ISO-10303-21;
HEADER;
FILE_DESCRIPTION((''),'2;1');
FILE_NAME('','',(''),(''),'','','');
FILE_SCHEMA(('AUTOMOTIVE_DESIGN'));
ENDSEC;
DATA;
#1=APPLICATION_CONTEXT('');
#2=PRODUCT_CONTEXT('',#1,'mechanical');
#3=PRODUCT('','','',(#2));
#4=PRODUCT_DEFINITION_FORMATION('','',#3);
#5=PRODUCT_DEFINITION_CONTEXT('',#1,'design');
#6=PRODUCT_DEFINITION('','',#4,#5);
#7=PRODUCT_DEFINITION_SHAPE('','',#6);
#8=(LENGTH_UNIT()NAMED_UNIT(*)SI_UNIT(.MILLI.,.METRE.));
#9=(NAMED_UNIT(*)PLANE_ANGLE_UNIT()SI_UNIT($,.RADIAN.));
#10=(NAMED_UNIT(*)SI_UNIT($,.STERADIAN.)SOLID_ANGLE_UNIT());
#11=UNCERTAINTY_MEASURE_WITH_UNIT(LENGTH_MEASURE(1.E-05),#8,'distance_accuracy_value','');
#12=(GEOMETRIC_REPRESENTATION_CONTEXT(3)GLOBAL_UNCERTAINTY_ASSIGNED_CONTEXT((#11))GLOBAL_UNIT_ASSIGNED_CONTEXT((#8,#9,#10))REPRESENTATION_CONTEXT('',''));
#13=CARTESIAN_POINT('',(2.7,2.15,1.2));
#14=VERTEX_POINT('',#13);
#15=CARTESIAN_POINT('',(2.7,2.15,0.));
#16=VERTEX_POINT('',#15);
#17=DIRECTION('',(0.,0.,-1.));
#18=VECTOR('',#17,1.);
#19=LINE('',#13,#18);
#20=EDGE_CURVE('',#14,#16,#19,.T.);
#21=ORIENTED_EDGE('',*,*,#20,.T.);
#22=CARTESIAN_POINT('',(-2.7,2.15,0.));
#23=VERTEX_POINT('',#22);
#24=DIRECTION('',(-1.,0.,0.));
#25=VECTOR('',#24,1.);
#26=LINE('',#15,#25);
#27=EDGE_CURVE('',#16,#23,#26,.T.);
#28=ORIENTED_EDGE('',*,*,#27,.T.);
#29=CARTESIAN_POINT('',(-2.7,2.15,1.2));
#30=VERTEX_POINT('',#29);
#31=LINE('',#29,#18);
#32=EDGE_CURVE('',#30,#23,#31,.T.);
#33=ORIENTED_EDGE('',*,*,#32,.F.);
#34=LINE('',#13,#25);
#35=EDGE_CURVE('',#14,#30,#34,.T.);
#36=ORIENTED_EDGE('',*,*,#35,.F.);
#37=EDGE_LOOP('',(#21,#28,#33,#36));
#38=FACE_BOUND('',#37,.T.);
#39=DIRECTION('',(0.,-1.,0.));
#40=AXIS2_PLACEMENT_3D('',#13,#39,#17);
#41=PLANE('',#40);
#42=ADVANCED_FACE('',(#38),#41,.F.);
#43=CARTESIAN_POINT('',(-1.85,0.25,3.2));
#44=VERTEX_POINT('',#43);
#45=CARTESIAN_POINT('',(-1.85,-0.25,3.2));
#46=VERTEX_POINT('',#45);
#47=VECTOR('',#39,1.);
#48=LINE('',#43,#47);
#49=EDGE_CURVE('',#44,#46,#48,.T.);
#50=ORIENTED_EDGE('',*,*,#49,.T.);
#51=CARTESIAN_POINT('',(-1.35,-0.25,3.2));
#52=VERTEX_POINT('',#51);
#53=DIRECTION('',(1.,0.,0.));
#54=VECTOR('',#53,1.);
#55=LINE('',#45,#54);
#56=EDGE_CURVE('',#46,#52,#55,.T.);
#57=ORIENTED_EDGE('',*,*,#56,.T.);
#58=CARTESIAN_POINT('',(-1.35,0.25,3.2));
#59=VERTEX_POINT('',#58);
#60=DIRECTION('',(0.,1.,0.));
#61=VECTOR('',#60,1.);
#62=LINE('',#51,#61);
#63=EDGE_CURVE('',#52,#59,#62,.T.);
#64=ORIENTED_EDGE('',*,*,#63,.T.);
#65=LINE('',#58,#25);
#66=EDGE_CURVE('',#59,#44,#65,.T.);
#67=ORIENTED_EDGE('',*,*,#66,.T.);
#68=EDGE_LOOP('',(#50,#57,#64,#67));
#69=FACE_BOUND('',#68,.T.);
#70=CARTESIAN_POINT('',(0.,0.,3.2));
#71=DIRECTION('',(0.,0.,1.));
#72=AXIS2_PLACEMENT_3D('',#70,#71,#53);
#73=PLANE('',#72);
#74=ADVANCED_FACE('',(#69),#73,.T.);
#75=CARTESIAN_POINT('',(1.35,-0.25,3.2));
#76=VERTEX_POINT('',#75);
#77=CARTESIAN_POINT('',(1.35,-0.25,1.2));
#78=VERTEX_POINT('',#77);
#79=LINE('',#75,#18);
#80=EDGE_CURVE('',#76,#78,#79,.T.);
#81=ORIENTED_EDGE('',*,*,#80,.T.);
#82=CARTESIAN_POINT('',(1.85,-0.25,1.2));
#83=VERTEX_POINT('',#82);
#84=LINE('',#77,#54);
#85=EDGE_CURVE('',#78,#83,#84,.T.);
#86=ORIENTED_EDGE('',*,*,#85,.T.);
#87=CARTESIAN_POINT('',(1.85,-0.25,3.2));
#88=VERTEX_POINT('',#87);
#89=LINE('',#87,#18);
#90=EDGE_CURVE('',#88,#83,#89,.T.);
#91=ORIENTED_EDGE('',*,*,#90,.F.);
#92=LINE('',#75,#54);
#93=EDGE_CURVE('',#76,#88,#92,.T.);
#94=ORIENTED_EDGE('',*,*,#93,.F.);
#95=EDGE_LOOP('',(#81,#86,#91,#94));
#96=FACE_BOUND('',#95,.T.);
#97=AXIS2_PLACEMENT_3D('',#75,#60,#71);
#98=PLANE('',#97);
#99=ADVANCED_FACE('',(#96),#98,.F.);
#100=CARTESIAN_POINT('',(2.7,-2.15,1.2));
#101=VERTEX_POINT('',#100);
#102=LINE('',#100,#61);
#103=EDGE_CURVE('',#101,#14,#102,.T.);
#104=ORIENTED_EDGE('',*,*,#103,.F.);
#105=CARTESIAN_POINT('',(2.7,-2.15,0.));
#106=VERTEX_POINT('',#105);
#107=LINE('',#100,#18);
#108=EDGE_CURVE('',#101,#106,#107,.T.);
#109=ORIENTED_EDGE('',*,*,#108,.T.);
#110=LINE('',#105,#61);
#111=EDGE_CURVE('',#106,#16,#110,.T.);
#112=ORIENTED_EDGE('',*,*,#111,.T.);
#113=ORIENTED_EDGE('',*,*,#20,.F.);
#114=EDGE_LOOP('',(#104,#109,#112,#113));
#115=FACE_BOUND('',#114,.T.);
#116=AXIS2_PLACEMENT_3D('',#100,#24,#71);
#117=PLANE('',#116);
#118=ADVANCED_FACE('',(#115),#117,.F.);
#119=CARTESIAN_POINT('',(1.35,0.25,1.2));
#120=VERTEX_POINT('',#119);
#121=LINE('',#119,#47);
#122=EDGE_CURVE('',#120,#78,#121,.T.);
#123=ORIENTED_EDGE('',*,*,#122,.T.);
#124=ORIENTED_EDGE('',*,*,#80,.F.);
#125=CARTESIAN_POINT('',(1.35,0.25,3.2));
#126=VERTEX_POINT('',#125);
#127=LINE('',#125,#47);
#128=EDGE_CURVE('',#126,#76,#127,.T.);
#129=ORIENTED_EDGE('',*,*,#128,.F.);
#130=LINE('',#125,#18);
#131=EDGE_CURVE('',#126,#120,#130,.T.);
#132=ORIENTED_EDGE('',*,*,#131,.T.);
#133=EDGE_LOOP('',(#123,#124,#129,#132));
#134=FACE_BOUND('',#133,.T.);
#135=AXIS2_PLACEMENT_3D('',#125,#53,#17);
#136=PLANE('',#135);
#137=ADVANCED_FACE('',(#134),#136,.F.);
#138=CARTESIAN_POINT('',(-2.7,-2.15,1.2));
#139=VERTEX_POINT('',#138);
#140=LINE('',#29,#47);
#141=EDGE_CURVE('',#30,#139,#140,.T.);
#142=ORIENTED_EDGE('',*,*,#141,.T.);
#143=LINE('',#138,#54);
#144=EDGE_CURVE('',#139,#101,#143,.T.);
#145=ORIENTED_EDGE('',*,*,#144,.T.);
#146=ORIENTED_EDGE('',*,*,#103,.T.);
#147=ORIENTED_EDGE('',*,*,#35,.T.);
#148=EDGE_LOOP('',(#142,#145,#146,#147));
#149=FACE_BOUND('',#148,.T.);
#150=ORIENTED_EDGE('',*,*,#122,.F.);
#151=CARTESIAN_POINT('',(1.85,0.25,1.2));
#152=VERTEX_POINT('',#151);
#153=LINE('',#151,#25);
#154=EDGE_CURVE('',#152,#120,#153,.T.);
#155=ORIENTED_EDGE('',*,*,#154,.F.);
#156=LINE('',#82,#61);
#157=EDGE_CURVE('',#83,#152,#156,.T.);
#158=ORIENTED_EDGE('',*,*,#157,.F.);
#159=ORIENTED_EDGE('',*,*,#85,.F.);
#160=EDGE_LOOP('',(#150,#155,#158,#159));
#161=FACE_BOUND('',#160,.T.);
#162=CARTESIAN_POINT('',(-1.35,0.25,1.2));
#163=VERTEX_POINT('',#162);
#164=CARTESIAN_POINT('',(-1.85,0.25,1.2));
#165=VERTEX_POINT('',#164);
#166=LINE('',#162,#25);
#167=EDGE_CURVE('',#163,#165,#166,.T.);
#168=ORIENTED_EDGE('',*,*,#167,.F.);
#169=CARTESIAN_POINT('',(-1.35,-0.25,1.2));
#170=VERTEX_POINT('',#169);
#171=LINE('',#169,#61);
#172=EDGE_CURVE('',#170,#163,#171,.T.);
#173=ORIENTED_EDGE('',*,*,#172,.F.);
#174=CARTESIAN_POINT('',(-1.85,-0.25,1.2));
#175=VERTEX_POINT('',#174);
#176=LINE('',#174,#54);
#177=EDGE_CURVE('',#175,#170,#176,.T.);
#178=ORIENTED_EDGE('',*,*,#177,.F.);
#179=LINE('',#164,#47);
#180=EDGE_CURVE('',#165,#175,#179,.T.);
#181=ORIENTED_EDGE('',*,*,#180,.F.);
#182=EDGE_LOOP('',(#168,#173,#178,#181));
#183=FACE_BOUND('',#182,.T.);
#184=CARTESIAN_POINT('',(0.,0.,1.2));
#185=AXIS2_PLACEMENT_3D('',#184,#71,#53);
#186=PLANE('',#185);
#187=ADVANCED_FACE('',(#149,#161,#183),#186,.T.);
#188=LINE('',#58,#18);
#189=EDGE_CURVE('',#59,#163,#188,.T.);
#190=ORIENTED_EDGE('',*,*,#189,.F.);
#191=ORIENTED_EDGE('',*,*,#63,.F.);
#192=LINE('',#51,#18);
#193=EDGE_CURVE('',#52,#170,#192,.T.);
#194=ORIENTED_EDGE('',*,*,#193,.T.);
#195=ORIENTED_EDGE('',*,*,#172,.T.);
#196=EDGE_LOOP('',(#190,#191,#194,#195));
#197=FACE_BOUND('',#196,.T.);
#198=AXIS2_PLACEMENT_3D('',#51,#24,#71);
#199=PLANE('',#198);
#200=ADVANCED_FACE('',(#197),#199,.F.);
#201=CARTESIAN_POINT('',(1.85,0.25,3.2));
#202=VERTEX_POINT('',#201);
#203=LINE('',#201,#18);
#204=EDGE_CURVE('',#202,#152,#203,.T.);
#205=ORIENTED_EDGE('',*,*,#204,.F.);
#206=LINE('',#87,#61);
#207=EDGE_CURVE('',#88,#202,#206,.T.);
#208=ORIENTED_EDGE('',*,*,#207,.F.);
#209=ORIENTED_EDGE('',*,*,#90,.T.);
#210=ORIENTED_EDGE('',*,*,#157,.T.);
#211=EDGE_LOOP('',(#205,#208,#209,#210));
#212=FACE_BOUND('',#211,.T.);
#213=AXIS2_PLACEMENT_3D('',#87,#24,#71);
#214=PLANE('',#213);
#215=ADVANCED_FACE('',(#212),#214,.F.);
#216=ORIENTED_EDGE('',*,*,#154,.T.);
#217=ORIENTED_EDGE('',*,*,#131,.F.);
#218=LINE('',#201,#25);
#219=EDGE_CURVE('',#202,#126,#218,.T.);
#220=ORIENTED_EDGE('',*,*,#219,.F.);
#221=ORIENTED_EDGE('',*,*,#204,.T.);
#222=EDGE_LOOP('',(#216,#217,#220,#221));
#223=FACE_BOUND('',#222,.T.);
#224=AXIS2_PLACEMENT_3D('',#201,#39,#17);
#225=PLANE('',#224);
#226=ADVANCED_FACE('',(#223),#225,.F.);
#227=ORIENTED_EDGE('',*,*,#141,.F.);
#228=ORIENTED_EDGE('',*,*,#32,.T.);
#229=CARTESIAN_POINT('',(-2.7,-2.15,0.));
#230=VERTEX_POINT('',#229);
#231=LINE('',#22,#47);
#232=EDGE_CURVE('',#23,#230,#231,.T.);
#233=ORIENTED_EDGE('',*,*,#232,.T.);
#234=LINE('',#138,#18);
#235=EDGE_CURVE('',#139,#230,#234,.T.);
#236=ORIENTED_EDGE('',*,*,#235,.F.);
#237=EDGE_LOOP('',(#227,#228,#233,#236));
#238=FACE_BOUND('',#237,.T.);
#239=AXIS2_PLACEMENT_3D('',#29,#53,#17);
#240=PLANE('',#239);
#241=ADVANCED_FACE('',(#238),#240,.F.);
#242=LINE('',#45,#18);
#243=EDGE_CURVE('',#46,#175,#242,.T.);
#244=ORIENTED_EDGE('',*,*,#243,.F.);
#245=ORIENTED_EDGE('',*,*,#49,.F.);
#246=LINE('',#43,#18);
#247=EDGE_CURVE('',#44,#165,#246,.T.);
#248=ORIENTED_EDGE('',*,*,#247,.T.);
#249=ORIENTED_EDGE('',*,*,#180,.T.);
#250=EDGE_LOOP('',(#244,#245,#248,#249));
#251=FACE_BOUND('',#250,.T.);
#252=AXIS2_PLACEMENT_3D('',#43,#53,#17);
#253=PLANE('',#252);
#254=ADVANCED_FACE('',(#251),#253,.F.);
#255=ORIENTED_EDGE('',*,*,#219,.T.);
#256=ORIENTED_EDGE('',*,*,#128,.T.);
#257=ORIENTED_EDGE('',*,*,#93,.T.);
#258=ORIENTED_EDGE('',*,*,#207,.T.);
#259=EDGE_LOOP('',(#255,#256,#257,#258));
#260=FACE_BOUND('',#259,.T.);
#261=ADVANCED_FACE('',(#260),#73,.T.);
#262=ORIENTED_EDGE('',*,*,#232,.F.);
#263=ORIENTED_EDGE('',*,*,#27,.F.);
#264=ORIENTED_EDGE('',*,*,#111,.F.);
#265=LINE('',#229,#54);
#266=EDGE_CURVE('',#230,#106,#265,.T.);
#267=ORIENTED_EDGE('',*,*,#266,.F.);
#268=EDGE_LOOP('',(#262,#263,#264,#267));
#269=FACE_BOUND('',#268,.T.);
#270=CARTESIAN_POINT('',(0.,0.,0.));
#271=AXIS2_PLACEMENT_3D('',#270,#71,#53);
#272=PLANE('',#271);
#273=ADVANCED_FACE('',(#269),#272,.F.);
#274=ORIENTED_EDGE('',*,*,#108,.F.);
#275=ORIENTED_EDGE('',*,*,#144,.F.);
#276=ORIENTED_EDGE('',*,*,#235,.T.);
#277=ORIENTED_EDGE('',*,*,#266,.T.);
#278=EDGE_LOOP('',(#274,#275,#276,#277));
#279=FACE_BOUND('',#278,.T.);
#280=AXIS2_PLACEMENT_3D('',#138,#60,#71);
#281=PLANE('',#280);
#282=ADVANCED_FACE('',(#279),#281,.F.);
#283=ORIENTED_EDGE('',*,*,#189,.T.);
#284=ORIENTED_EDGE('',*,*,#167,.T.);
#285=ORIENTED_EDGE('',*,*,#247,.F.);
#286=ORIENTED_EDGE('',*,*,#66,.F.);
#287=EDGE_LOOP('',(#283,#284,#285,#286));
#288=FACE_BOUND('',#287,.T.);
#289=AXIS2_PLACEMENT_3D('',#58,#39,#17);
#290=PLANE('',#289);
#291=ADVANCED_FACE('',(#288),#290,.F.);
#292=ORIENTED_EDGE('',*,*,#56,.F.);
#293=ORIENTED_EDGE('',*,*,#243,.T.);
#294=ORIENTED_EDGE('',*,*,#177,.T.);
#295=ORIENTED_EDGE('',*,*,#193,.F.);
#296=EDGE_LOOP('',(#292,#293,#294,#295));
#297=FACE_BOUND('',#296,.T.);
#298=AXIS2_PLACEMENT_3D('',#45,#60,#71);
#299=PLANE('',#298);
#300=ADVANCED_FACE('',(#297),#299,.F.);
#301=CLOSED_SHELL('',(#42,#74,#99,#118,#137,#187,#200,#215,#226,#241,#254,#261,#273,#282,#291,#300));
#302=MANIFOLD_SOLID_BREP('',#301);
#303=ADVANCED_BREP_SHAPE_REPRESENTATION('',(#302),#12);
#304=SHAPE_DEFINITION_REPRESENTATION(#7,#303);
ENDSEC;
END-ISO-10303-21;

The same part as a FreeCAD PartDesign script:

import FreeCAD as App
import Part
import Sketcher

V = App.Vector
Q = App.Units.Quantity


def add_polygon(sketch, points):
    """Adds a closed chain of lines whose ends are joined by coincident constraints."""
    first, n = sketch.GeometryCount, len(points)
    for a, b in zip(points, points[1:] + points[:1]):
        sketch.addGeometry(Part.LineSegment(App.Vector(*a, 0), App.Vector(*b, 0)), False)
    for i in range(n):
        sketch.addConstraint(Sketcher.Constraint("Coincident", first + i, 2, first + (i + 1) % n, 1))

doc = App.newDocument("Part")
body = doc.addObject("PartDesign::Body", "Body")

# Sketch on XY plane
sketch1 = body.newObject("Sketcher::SketchObject", "Sketch")
sketch1.AttachmentSupport = (doc.getObject("XY_Plane"), [""])
sketch1.MapMode = "FlatFace"
add_polygon(sketch1, [(-2.7, 2.1), (-2.7, -2.1), (2.7, -2.1), (2.7, 2.1)])  # lines 0-3
sketch1.addConstraint(Sketcher.Constraint("Vertical", 0))
sketch1.addConstraint(Sketcher.Constraint("Horizontal", 1))
sketch1.addConstraint(Sketcher.Constraint("Vertical", 2))
sketch1.addConstraint(Sketcher.Constraint("Horizontal", 3))
sketch1.addConstraint(Sketcher.Constraint("Symmetric", 0, 2, 2, 2, -1, 1))
sketch1.addConstraint(Sketcher.Constraint("DistanceX", 1, 1, 1, 2, Q("5.4 mm")))
sketch1.addConstraint(Sketcher.Constraint("DistanceY", 0, 2, 0, 1, Q("4.3 mm")))
pad1 = body.newObject("PartDesign::Pad", "Pad")
pad1.Profile = sketch1
pad1.Length = 1.2

# Sketch on XY plane
sketch2 = body.newObject("Sketcher::SketchObject", "Sketch001")
sketch2.AttachmentSupport = (doc.getObject("XY_Plane"), [""])
sketch2.MapMode = "FlatFace"
sketch2.AttachmentOffset = App.Placement(V(0, 0, 1.2), App.Rotation())
add_polygon(sketch2, [(-1.9, 0.2), (-1.9, -0.2), (-1.4, -0.2), (-1.4, 0.2)])  # lines 0-3
add_polygon(sketch2, [(1.4, 0.2), (1.4, -0.2), (1.9, -0.2), (1.9, 0.2)])  # lines 4-7
sketch2.addConstraint(Sketcher.Constraint("Vertical", 0))
sketch2.addConstraint(Sketcher.Constraint("Horizontal", 1))
sketch2.addConstraint(Sketcher.Constraint("Vertical", 2))
sketch2.addConstraint(Sketcher.Constraint("Horizontal", 3))
sketch2.addConstraint(Sketcher.Constraint("Vertical", 4))
sketch2.addConstraint(Sketcher.Constraint("Horizontal", 5))
sketch2.addConstraint(Sketcher.Constraint("Vertical", 6))
sketch2.addConstraint(Sketcher.Constraint("Horizontal", 7))
sketch2.addConstraint(Sketcher.Constraint("Symmetric", 2, 2, 4, 2, -1, 1))
sketch2.addConstraint(Sketcher.Constraint("Symmetric", 0, 2, 6, 2, -1, 1))
sketch2.addConstraint(Sketcher.Constraint("Horizontal", 1, 2, 4, 2))
sketch2.addConstraint(Sketcher.Constraint("Equal", 7, 0))
sketch2.addConstraint(Sketcher.Constraint("DistanceX", 1, 1, 1, 2, Q("0.5 mm")))
sketch2.addConstraint(Sketcher.Constraint("DistanceX", 1, 2, 4, 2, Q("2.7 mm")))
pad2 = body.newObject("PartDesign::Pad", "Pad001")
pad2.Profile = sketch2
pad2.Length = 2

doc.recompute()
